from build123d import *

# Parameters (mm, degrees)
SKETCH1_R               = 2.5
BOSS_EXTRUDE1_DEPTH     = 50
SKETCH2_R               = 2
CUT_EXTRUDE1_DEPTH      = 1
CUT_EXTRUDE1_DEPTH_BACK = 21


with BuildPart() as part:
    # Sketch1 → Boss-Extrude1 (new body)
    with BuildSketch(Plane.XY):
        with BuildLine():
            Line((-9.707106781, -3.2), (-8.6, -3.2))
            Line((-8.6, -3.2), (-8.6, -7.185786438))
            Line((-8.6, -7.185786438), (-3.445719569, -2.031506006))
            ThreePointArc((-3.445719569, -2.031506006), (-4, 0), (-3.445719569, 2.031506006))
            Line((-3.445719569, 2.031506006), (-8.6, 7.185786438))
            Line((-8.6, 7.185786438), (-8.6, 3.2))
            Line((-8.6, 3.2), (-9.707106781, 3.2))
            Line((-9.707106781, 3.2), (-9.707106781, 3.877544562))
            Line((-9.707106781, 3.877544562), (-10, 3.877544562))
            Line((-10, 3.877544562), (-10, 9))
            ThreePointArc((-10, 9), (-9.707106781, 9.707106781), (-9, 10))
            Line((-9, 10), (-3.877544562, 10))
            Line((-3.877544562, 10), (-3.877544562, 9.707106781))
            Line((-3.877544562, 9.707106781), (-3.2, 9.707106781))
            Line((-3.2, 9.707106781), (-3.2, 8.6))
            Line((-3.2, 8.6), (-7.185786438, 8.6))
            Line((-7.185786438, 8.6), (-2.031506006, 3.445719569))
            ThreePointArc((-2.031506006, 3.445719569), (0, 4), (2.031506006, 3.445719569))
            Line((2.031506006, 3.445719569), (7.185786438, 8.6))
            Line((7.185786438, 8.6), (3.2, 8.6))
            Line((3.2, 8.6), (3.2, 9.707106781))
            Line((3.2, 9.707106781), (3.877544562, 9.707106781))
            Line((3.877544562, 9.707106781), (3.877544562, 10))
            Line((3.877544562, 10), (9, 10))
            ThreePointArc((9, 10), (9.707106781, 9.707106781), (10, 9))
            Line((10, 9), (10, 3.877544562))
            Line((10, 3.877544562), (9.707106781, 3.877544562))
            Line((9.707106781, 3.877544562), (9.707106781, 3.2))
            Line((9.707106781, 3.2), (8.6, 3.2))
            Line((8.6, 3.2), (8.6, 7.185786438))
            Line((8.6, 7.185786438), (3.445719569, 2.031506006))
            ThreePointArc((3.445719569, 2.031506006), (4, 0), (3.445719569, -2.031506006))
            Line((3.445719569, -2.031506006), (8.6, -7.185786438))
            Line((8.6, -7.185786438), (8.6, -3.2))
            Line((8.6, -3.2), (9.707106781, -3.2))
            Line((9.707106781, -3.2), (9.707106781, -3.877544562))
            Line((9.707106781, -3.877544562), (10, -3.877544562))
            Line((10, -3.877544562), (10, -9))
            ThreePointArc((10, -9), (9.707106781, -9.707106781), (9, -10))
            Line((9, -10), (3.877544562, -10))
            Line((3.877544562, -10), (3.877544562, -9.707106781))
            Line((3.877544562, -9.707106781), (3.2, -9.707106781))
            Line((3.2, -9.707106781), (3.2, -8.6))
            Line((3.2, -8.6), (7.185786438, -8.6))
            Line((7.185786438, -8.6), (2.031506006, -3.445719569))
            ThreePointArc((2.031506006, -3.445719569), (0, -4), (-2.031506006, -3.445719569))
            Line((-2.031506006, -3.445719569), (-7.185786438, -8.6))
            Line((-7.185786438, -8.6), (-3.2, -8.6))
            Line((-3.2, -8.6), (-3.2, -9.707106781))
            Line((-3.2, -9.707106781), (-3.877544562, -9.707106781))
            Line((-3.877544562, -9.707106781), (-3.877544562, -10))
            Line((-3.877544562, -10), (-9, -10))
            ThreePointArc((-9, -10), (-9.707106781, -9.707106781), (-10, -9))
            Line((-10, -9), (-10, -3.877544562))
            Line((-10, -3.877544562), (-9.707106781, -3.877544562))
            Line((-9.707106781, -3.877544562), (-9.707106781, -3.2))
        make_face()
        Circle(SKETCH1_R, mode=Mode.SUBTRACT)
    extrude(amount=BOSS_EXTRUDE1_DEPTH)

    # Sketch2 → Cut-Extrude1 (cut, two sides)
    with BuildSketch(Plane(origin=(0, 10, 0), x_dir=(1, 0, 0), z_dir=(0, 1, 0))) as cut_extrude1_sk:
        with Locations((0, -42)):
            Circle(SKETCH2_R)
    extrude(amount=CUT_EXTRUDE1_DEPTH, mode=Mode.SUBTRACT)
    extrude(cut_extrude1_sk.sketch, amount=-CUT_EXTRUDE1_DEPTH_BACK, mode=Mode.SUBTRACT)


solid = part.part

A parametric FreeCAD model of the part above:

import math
import FreeCAD as App
import Part
import Sketcher
Q = App.Units.Quantity

doc = App.newDocument("Part")
body = doc.addObject("PartDesign::Body", "Body")

# Sketch on XY plane
sketch1 = doc.addObject("Sketcher::SketchObject", "Sketch")
body.addObject(sketch1)
sketch1.AttachmentSupport = (doc.XY_Plane, [""])
sketch1.MapMode = "FlatFace"
sketch1.addGeometry(Part.LineSegment(App.Vector(-8.6, -3.2, 0), App.Vector(-9.71, -3.2, 0)), False)
sketch1.addGeometry(Part.LineSegment(App.Vector(-9.71, -3.2, 0), App.Vector(-9.71, -3.88, 0)), False)
sketch1.addGeometry(Part.LineSegment(App.Vector(-9.71, -3.88, 0), App.Vector(-10, -3.88, 0)), False)
sketch1.addGeometry(Part.LineSegment(App.Vector(-10, -3.88, 0), App.Vector(-10, -9, 0)), False)
sketch1.addGeometry(Part.ArcOfCircle(Part.Circle(App.Vector(-9, -9, 0), App.Vector(0, 0, 1), 1), math.radians(-180), math.radians(-90)), False)
sketch1.addGeometry(Part.LineSegment(App.Vector(-9, -10, 0), App.Vector(-3.88, -10, 0)), False)
sketch1.addGeometry(Part.LineSegment(App.Vector(-3.88, -10, 0), App.Vector(-3.88, -9.71, 0)), False)
sketch1.addGeometry(Part.LineSegment(App.Vector(-3.88, -9.71, 0), App.Vector(-3.2, -9.71, 0)), False)
sketch1.addGeometry(Part.LineSegment(App.Vector(-3.2, -9.71, 0), App.Vector(-3.2, -8.6, 0)), False)
sketch1.addGeometry(Part.LineSegment(App.Vector(-3.2, -8.6, 0), App.Vector(-7.19, -8.6, 0)), False)
sketch1.addGeometry(Part.LineSegment(App.Vector(-7.19, -8.6, 0), App.Vector(-2.03, -3.45, 0)), False)
sketch1.addGeometry(Part.ArcOfCircle(Part.Circle(App.Vector(0, 0, 0), App.Vector(0, 0, 1), 4), math.radians(-121), math.radians(-59)), False)
sketch1.addGeometry(Part.LineSegment(App.Vector(2.03, -3.45, 0), App.Vector(7.19, -8.6, 0)), False)
sketch1.addGeometry(Part.LineSegment(App.Vector(7.19, -8.6, 0), App.Vector(3.2, -8.6, 0)), False)
sketch1.addGeometry(Part.LineSegment(App.Vector(3.2, -8.6, 0), App.Vector(3.2, -9.71, 0)), False)
sketch1.addGeometry(Part.LineSegment(App.Vector(3.2, -9.71, 0), App.Vector(3.88, -9.71, 0)), False)
sketch1.addGeometry(Part.LineSegment(App.Vector(3.88, -9.71, 0), App.Vector(3.88, -10, 0)), False)
sketch1.addGeometry(Part.LineSegment(App.Vector(3.88, -10, 0), App.Vector(9, -10, 0)), False)
sketch1.addGeometry(Part.ArcOfCircle(Part.Circle(App.Vector(9, -9, 0), App.Vector(0, 0, 1), 1), math.radians(-90), math.radians(0)), False)
sketch1.addGeometry(Part.LineSegment(App.Vector(10, -9, 0), App.Vector(10, -3.88, 0)), False)
sketch1.addGeometry(Part.LineSegment(App.Vector(10, -3.88, 0), App.Vector(9.71, -3.88, 0)), False)
sketch1.addGeometry(Part.LineSegment(App.Vector(9.71, -3.88, 0), App.Vector(9.71, -3.2, 0)), False)
sketch1.addGeometry(Part.LineSegment(App.Vector(9.71, -3.2, 0), App.Vector(8.6, -3.2, 0)), False)
sketch1.addGeometry(Part.LineSegment(App.Vector(8.6, -3.2, 0), App.Vector(8.6, -7.19, 0)), False)
sketch1.addGeometry(Part.LineSegment(App.Vector(8.6, -7.19, 0), App.Vector(3.45, -2.03, 0)), False)
sketch1.addGeometry(Part.ArcOfCircle(Part.Circle(App.Vector(0, 0, 0), App.Vector(0, 0, 1), 4), math.radians(-31), math.radians(31)), False)
sketch1.addGeometry(Part.LineSegment(App.Vector(3.45, 2.03, 0), App.Vector(8.6, 7.19, 0)), False)
sketch1.addGeometry(Part.LineSegment(App.Vector(8.6, 7.19, 0), App.Vector(8.6, 3.2, 0)), False)
sketch1.addGeometry(Part.LineSegment(App.Vector(8.6, 3.2, 0), App.Vector(9.71, 3.2, 0)), False)
sketch1.addGeometry(Part.LineSegment(App.Vector(9.71, 3.2, 0), App.Vector(9.71, 3.88, 0)), False)
sketch1.addGeometry(Part.LineSegment(App.Vector(9.71, 3.88, 0), App.Vector(10, 3.88, 0)), False)
sketch1.addGeometry(Part.LineSegment(App.Vector(10, 3.88, 0), App.Vector(10, 9, 0)), False)
sketch1.addGeometry(Part.ArcOfCircle(Part.Circle(App.Vector(9, 9, 0), App.Vector(0, 0, 1), 1), math.radians(0), math.radians(90)), False)
sketch1.addGeometry(Part.LineSegment(App.Vector(9, 10, 0), App.Vector(3.88, 10, 0)), False)
sketch1.addGeometry(Part.LineSegment(App.Vector(3.88, 10, 0), App.Vector(3.88, 9.71, 0)), False)
sketch1.addGeometry(Part.LineSegment(App.Vector(3.88, 9.71, 0), App.Vector(3.2, 9.71, 0)), False)
sketch1.addGeometry(Part.LineSegment(App.Vector(3.2, 9.71, 0), App.Vector(3.2, 8.6, 0)), False)
sketch1.addGeometry(Part.LineSegment(App.Vector(3.2, 8.6, 0), App.Vector(7.19, 8.6, 0)), False)
sketch1.addGeometry(Part.LineSegment(App.Vector(7.19, 8.6, 0), App.Vector(2.03, 3.45, 0)), False)
sketch1.addGeometry(Part.ArcOfCircle(Part.Circle(App.Vector(0, 0, 0), App.Vector(0, 0, 1), 4), math.radians(59), math.radians(121)), False)
sketch1.addGeometry(Part.LineSegment(App.Vector(-2.03, 3.45, 0), App.Vector(-7.19, 8.6, 0)), False)
sketch1.addGeometry(Part.LineSegment(App.Vector(-7.19, 8.6, 0), App.Vector(-3.2, 8.6, 0)), False)
sketch1.addGeometry(Part.LineSegment(App.Vector(-3.2, 8.6, 0), App.Vector(-3.2, 9.71, 0)), False)
sketch1.addGeometry(Part.LineSegment(App.Vector(-3.2, 9.71, 0), App.Vector(-3.88, 9.71, 0)), False)
sketch1.addGeometry(Part.LineSegment(App.Vector(-3.88, 9.71, 0), App.Vector(-3.88, 10, 0)), False)
sketch1.addGeometry(Part.LineSegment(App.Vector(-3.88, 10, 0), App.Vector(-9, 10, 0)), False)
sketch1.addGeometry(Part.ArcOfCircle(Part.Circle(App.Vector(-9, 9, 0), App.Vector(0, 0, 1), 1), math.radians(90), math.radians(180)), False)
sketch1.addGeometry(Part.LineSegment(App.Vector(-10, 9, 0), App.Vector(-10, 3.88, 0)), False)
sketch1.addGeometry(Part.LineSegment(App.Vector(-10, 3.88, 0), App.Vector(-9.71, 3.88, 0)), False)
sketch1.addGeometry(Part.LineSegment(App.Vector(-9.71, 3.88, 0), App.Vector(-9.71, 3.2, 0)), False)
sketch1.addGeometry(Part.LineSegment(App.Vector(-9.71, 3.2, 0), App.Vector(-8.6, 3.2, 0)), False)
sketch1.addGeometry(Part.LineSegment(App.Vector(-8.6, 3.2, 0), App.Vector(-8.6, 7.19, 0)), False)
sketch1.addGeometry(Part.LineSegment(App.Vector(-8.6, 7.19, 0), App.Vector(-3.45, 2.03, 0)), False)
sketch1.addGeometry(Part.ArcOfCircle(Part.Circle(App.Vector(0, 0, 0), App.Vector(0, 0, 1), 4), math.radians(149), math.radians(211)), False)
sketch1.addGeometry(Part.LineSegment(App.Vector(-3.45, -2.03, 0), App.Vector(-8.6, -7.19, 0)), False)
sketch1.addGeometry(Part.LineSegment(App.Vector(-8.6, -7.19, 0), App.Vector(-8.6, -3.2, 0)), False)
sketch1.addGeometry(Part.Circle(App.Vector(0, 0, 0), App.Vector(0, 0, 1), 2.5), False)
sketch1.addConstraint(Sketcher.Constraint("Coincident", 0, 2, 1, 1))
sketch1.addConstraint(Sketcher.Constraint("Coincident", 1, 2, 2, 1))
sketch1.addConstraint(Sketcher.Constraint("Coincident", 2, 2, 3, 1))
sketch1.addConstraint(Sketcher.Constraint("Tangent", 3, 2, 4, 1))
sketch1.addConstraint(Sketcher.Constraint("Tangent", 4, 2, 5, 1))
sketch1.addConstraint(Sketcher.Constraint("Coincident", 5, 2, 6, 1))
sketch1.addConstraint(Sketcher.Constraint("Coincident", 6, 2, 7, 1))
sketch1.addConstraint(Sketcher.Constraint("Coincident", 7, 2, 8, 1))
sketch1.addConstraint(Sketcher.Constraint("Coincident", 8, 2, 9, 1))
sketch1.addConstraint(Sketcher.Constraint("Coincident", 9, 2, 10, 1))
sketch1.addConstraint(Sketcher.Constraint("Coincident", 10, 2, 11, 1))
sketch1.addConstraint(Sketcher.Constraint("Coincident", 11, 2, 12, 1))
sketch1.addConstraint(Sketcher.Constraint("Coincident", 12, 2, 13, 1))
sketch1.addConstraint(Sketcher.Constraint("Coincident", 13, 2, 14, 1))
sketch1.addConstraint(Sketcher.Constraint("Coincident", 14, 2, 15, 1))
sketch1.addConstraint(Sketcher.Constraint("Coincident", 15, 2, 16, 1))
sketch1.addConstraint(Sketcher.Constraint("Coincident", 16, 2, 17, 1))
sketch1.addConstraint(Sketcher.Constraint("Tangent", 17, 2, 18, 1))
sketch1.addConstraint(Sketcher.Constraint("Tangent", 18, 2, 19, 1))
sketch1.addConstraint(Sketcher.Constraint("Coincident", 19, 2, 20, 1))
sketch1.addConstraint(Sketcher.Constraint("Coincident", 20, 2, 21, 1))
sketch1.addConstraint(Sketcher.Constraint("Coincident", 21, 2, 22, 1))
sketch1.addConstraint(Sketcher.Constraint("Coincident", 22, 2, 23, 1))
sketch1.addConstraint(Sketcher.Constraint("Coincident", 23, 2, 24, 1))
sketch1.addConstraint(Sketcher.Constraint("Coincident", 24, 2, 25, 1))
sketch1.addConstraint(Sketcher.Constraint("Coincident", 25, 2, 26, 1))
sketch1.addConstraint(Sketcher.Constraint("Coincident", 26, 2, 27, 1))
sketch1.addConstraint(Sketcher.Constraint("Coincident", 27, 2, 28, 1))
sketch1.addConstraint(Sketcher.Constraint("Coincident", 28, 2, 29, 1))
sketch1.addConstraint(Sketcher.Constraint("Coincident", 29, 2, 30, 1))
sketch1.addConstraint(Sketcher.Constraint("Coincident", 30, 2, 31, 1))
sketch1.addConstraint(Sketcher.Constraint("Tangent", 31, 2, 32, 1))
sketch1.addConstraint(Sketcher.Constraint("Tangent", 32, 2, 33, 1))
sketch1.addConstraint(Sketcher.Constraint("Coincident", 33, 2, 34, 1))
sketch1.addConstraint(Sketcher.Constraint("Coincident", 34, 2, 35, 1))
sketch1.addConstraint(Sketcher.Constraint("Coincident", 35, 2, 36, 1))
sketch1.addConstraint(Sketcher.Constraint("Coincident", 36, 2, 37, 1))
sketch1.addConstraint(Sketcher.Constraint("Coincident", 37, 2, 38, 1))
sketch1.addConstraint(Sketcher.Constraint("Coincident", 38, 2, 39, 1))
sketch1.addConstraint(Sketcher.Constraint("Coincident", 39, 2, 40, 1))
sketch1.addConstraint(Sketcher.Constraint("Coincident", 40, 2, 41, 1))
sketch1.addConstraint(Sketcher.Constraint("Coincident", 41, 2, 42, 1))
sketch1.addConstraint(Sketcher.Constraint("Coincident", 42, 2, 43, 1))
sketch1.addConstraint(Sketcher.Constraint("Coincident", 43, 2, 44, 1))
sketch1.addConstraint(Sketcher.Constraint("Coincident", 44, 2, 45, 1))
sketch1.addConstraint(Sketcher.Constraint("Tangent", 45, 2, 46, 1))
sketch1.addConstraint(Sketcher.Constraint("Tangent", 46, 2, 47, 1))
sketch1.addConstraint(Sketcher.Constraint("Coincident", 47, 2, 48, 1))
sketch1.addConstraint(Sketcher.Constraint("Coincident", 48, 2, 49, 1))
sketch1.addConstraint(Sketcher.Constraint("Coincident", 49, 2, 50, 1))
sketch1.addConstraint(Sketcher.Constraint("Coincident", 50, 2, 51, 1))
sketch1.addConstraint(Sketcher.Constraint("Coincident", 51, 2, 52, 1))
sketch1.addConstraint(Sketcher.Constraint("Coincident", 52, 2, 53, 1))
sketch1.addConstraint(Sketcher.Constraint("Coincident", 53, 2, 54, 1))
sketch1.addConstraint(Sketcher.Constraint("Coincident", 54, 2, 55, 1))
sketch1.addConstraint(Sketcher.Constraint("Coincident", 55, 2, 0, 1))
sketch1.addConstraint(Sketcher.Constraint("Horizontal", 0))
sketch1.addConstraint(Sketcher.Constraint("Vertical", 1))
sketch1.addConstraint(Sketcher.Constraint("Horizontal", 2))
sketch1.addConstraint(Sketcher.Constraint("Vertical", 3))
sketch1.addConstraint(Sketcher.Constraint("Horizontal", 5))
sketch1.addConstraint(Sketcher.Constraint("Vertical", 6))
sketch1.addConstraint(Sketcher.Constraint("Horizontal", 7))
sketch1.addConstraint(Sketcher.Constraint("Vertical", 8))
sketch1.addConstraint(Sketcher.Constraint("Horizontal", 9))
sketch1.addConstraint(Sketcher.Constraint("Horizontal", 13))
sketch1.addConstraint(Sketcher.Constraint("Vertical", 14))
sketch1.addConstraint(Sketcher.Constraint("Horizontal", 15))
sketch1.addConstraint(Sketcher.Constraint("Vertical", 16))
sketch1.addConstraint(Sketcher.Constraint("Horizontal", 17))
sketch1.addConstraint(Sketcher.Constraint("Vertical", 19))
sketch1.addConstraint(Sketcher.Constraint("Horizontal", 20))
sketch1.addConstraint(Sketcher.Constraint("Vertical", 21))
sketch1.addConstraint(Sketcher.Constraint("Horizontal", 22))
sketch1.addConstraint(Sketcher.Constraint("Vertical", 23))
sketch1.addConstraint(Sketcher.Constraint("Vertical", 27))
sketch1.addConstraint(Sketcher.Constraint("Horizontal", 28))
sketch1.addConstraint(Sketcher.Constraint("Vertical", 29))
sketch1.addConstraint(Sketcher.Constraint("Horizontal", 30))
sketch1.addConstraint(Sketcher.Constraint("Vertical", 31))
sketch1.addConstraint(Sketcher.Constraint("Horizontal", 33))
sketch1.addConstraint(Sketcher.Constraint("Vertical", 34))
sketch1.addConstraint(Sketcher.Constraint("Horizontal", 35))
sketch1.addConstraint(Sketcher.Constraint("Vertical", 36))
sketch1.addConstraint(Sketcher.Constraint("Horizontal", 37))
sketch1.addConstraint(Sketcher.Constraint("Horizontal", 41))
sketch1.addConstraint(Sketcher.Constraint("Vertical", 42))
sketch1.addConstraint(Sketcher.Constraint("Horizontal", 43))
sketch1.addConstraint(Sketcher.Constraint("Vertical", 44))
sketch1.addConstraint(Sketcher.Constraint("Horizontal", 45))
sketch1.addConstraint(Sketcher.Constraint("Vertical", 47))
sketch1.addConstraint(Sketcher.Constraint("Horizontal", 48))
sketch1.addConstraint(Sketcher.Constraint("Vertical", 49))
sketch1.addConstraint(Sketcher.Constraint("Horizontal", 50))
sketch1.addConstraint(Sketcher.Constraint("Vertical", 51))
sketch1.addConstraint(Sketcher.Constraint("Vertical", 55))
sketch1.addConstraint(Sketcher.Constraint("Coincident", 11, 3, -1, 1))
sketch1.addConstraint(Sketcher.Constraint("Coincident", 25, 3, -1, 1))
sketch1.addConstraint(Sketcher.Constraint("Coincident", 39, 3, -1, 1))
sketch1.addConstraint(Sketcher.Constraint("Coincident", 53, 3, -1, 1))
sketch1.addConstraint(Sketcher.Constraint("Coincident", 56, 3, -1, 1))
sketch1.addConstraint(Sketcher.Constraint("Equal", 4, 18))
sketch1.addConstraint(Sketcher.Constraint("Equal", 11, 25))
sketch1.addConstraint(Sketcher.Constraint("Equal", 18, 32))
sketch1.addConstraint(Sketcher.Constraint("Equal", 25, 39))
sketch1.addConstraint(Sketcher.Constraint("Equal", 32, 46))
sketch1.addConstraint(Sketcher.Constraint("Equal", 39, 53))
sketch1.addConstraint(Sketcher.Constraint("Symmetric", 4, 3, 32, 3, -1, 1))
sketch1.addConstraint(Sketcher.Constraint("Symmetric", 18, 3, 46, 3, -1, 1))
sketch1.addConstraint(Sketcher.Constraint("Symmetric", 0, 2, 28, 2, -1, 1))
sketch1.addConstraint(Sketcher.Constraint("Symmetric", 6, 2, 34, 2, -1, 1))
sketch1.addConstraint(Sketcher.Constraint("Symmetric", 8, 2, 36, 2, -1, 1))
sketch1.addConstraint(Sketcher.Constraint("Symmetric", 12, 2, 40, 2, -1, 1))
sketch1.addConstraint(Sketcher.Constraint("Symmetric", 14, 2, 42, 2, -1, 1))
sketch1.addConstraint(Sketcher.Constraint("Symmetric", 20, 2, 48, 2, -1, 1))
sketch1.addConstraint(Sketcher.Constraint("Symmetric", 22, 2, 50, 2, -1, 1))
sketch1.addConstraint(Sketcher.Constraint("Symmetric", 26, 2, 54, 2, -1, 1))
sketch1.addConstraint(Sketcher.Constraint("Symmetric", 4, 3, 18, 3, -2))
sketch1.addConstraint(Sketcher.Constraint("Symmetric", 9, 2, 12, 2, -2))
sketch1.addConstraint(Sketcher.Constraint("Symmetric", 7, 2, 14, 2, -2))
sketch1.addConstraint(Sketcher.Constraint("Symmetric", 1, 2, 20, 2, -2))
sketch1.addConstraint(Sketcher.Constraint("Symmetric", 27, 2, 50, 2, -2))
sketch1.addConstraint(Sketcher.Constraint("Perpendicular", 10, 12))
sketch1.addConstraint(Sketcher.Constraint("Parallel", 12, 24))
sketch1.addConstraint(Sketcher.Constraint("Perpendicular", 24, 26))
sketch1.addConstraint(Sketcher.Constraint("Parallel", 26, 38))
sketch1.addConstraint(Sketcher.Constraint("Perpendicular", 38, 40))
sketch1.addConstraint(Sketcher.Constraint("Parallel", 40, 52))
sketch1.addConstraint(Sketcher.Constraint("Perpendicular", 52, 54))
sketch1.addConstraint(Sketcher.Constraint("Horizontal", 10, 2, 11, 2))
sketch1.addConstraint(Sketcher.Constraint("Horizontal", 38, 2, 39, 2))
sketch1.addConstraint(Sketcher.Constraint("Horizontal", 30, 2, 47, 2))
sketch1.addConstraint(Sketcher.Constraint("Horizontal", 26, 2, 51, 2))
sketch1.addConstraint(Sketcher.Constraint("Horizontal", 24, 2, 53, 2))
sketch1.addConstraint(Sketcher.Constraint("Vertical", 16, 2, 33, 2))
sketch1.addConstraint(Sketcher.Constraint("Vertical", 6, 2, 43, 2))
sketch1.addConstraint(Sketcher.Constraint("Equal", 43, 1))
sketch1.addConstraint(Sketcher.Constraint("Equal", 45, 3))
sketch1.addConstraint(Sketcher.Constraint("Equal", 48, 6))
sketch1.addConstraint(Sketcher.Constraint("Equal", 50, 8))
sketch1.addConstraint(Sketcher.Constraint("Equal", 41, 23))
sketch1.addConstraint(Sketcher.Constraint("Equal", 12, 24))
sketch1.addConstraint(Sketcher.Constraint("Diameter", 56, Q("5 mm")))
sketch1.addConstraint(Sketcher.Constraint("Radius", 4, Q("1 mm")))
sketch1.addConstraint(Sketcher.Constraint("Radius", 11, Q("4 mm")))
sketch1.addConstraint(Sketcher.Constraint("DistanceX", 4, 3, -1, 1, Q("9 mm")))
sketch1.addConstraint(Sketcher.Constraint("DistanceY", 0, 2, -1, 1, Q("3.2 mm")))
sketch1.addConstraint(Sketcher.Constraint("DistanceY", 8, 2, -1, 1, Q("8.6 mm")))
sketch1.addConstraint(Sketcher.Constraint("DistanceX", 0, 2, 0, 1, Q("1.107107 mm")))
sketch1.addConstraint(Sketcher.Constraint("DistanceX", 5, 1, 5, 2, Q("5.122455 mm")))
sketch1.addConstraint(Sketcher.Constraint("DistanceX", 9, 2, 9, 1, Q("3.985786 mm")))
pad1 = doc.addObject("PartDesign::Pad", "Pad")
body.addObject(pad1)
pad1.Profile = sketch1
pad1.Length = 50

# Sketch on XZ plane
sketch2 = doc.addObject("Sketcher::SketchObject", "Sketch001")
body.addObject(sketch2)
sketch2.AttachmentSupport = (doc.XZ_Plane, [""])
sketch2.MapMode = "FlatFace"
sketch2.AttachmentOffset = App.Placement(App.Vector(0, 0, -10), App.Rotation())
sketch2.addGeometry(Part.Circle(App.Vector(0, 42, 0), App.Vector(0, 0, 1), 2), False)
sketch2.addConstraint(Sketcher.Constraint("PointOnObject", 0, 3, -2))
sketch2.addConstraint(Sketcher.Constraint("Diameter", 0, Q("4 mm")))
sketch2.addConstraint(Sketcher.Constraint("DistanceY", -1, 1, 0, 3, Q("42 mm")))
pocket1 = doc.addObject("PartDesign::Pocket", "Pocket")
body.addObject(pocket1)
pocket1.Profile = sketch2
pocket1.Type = "ThroughAll"
pocket1.Midplane = True

doc.recompute()
